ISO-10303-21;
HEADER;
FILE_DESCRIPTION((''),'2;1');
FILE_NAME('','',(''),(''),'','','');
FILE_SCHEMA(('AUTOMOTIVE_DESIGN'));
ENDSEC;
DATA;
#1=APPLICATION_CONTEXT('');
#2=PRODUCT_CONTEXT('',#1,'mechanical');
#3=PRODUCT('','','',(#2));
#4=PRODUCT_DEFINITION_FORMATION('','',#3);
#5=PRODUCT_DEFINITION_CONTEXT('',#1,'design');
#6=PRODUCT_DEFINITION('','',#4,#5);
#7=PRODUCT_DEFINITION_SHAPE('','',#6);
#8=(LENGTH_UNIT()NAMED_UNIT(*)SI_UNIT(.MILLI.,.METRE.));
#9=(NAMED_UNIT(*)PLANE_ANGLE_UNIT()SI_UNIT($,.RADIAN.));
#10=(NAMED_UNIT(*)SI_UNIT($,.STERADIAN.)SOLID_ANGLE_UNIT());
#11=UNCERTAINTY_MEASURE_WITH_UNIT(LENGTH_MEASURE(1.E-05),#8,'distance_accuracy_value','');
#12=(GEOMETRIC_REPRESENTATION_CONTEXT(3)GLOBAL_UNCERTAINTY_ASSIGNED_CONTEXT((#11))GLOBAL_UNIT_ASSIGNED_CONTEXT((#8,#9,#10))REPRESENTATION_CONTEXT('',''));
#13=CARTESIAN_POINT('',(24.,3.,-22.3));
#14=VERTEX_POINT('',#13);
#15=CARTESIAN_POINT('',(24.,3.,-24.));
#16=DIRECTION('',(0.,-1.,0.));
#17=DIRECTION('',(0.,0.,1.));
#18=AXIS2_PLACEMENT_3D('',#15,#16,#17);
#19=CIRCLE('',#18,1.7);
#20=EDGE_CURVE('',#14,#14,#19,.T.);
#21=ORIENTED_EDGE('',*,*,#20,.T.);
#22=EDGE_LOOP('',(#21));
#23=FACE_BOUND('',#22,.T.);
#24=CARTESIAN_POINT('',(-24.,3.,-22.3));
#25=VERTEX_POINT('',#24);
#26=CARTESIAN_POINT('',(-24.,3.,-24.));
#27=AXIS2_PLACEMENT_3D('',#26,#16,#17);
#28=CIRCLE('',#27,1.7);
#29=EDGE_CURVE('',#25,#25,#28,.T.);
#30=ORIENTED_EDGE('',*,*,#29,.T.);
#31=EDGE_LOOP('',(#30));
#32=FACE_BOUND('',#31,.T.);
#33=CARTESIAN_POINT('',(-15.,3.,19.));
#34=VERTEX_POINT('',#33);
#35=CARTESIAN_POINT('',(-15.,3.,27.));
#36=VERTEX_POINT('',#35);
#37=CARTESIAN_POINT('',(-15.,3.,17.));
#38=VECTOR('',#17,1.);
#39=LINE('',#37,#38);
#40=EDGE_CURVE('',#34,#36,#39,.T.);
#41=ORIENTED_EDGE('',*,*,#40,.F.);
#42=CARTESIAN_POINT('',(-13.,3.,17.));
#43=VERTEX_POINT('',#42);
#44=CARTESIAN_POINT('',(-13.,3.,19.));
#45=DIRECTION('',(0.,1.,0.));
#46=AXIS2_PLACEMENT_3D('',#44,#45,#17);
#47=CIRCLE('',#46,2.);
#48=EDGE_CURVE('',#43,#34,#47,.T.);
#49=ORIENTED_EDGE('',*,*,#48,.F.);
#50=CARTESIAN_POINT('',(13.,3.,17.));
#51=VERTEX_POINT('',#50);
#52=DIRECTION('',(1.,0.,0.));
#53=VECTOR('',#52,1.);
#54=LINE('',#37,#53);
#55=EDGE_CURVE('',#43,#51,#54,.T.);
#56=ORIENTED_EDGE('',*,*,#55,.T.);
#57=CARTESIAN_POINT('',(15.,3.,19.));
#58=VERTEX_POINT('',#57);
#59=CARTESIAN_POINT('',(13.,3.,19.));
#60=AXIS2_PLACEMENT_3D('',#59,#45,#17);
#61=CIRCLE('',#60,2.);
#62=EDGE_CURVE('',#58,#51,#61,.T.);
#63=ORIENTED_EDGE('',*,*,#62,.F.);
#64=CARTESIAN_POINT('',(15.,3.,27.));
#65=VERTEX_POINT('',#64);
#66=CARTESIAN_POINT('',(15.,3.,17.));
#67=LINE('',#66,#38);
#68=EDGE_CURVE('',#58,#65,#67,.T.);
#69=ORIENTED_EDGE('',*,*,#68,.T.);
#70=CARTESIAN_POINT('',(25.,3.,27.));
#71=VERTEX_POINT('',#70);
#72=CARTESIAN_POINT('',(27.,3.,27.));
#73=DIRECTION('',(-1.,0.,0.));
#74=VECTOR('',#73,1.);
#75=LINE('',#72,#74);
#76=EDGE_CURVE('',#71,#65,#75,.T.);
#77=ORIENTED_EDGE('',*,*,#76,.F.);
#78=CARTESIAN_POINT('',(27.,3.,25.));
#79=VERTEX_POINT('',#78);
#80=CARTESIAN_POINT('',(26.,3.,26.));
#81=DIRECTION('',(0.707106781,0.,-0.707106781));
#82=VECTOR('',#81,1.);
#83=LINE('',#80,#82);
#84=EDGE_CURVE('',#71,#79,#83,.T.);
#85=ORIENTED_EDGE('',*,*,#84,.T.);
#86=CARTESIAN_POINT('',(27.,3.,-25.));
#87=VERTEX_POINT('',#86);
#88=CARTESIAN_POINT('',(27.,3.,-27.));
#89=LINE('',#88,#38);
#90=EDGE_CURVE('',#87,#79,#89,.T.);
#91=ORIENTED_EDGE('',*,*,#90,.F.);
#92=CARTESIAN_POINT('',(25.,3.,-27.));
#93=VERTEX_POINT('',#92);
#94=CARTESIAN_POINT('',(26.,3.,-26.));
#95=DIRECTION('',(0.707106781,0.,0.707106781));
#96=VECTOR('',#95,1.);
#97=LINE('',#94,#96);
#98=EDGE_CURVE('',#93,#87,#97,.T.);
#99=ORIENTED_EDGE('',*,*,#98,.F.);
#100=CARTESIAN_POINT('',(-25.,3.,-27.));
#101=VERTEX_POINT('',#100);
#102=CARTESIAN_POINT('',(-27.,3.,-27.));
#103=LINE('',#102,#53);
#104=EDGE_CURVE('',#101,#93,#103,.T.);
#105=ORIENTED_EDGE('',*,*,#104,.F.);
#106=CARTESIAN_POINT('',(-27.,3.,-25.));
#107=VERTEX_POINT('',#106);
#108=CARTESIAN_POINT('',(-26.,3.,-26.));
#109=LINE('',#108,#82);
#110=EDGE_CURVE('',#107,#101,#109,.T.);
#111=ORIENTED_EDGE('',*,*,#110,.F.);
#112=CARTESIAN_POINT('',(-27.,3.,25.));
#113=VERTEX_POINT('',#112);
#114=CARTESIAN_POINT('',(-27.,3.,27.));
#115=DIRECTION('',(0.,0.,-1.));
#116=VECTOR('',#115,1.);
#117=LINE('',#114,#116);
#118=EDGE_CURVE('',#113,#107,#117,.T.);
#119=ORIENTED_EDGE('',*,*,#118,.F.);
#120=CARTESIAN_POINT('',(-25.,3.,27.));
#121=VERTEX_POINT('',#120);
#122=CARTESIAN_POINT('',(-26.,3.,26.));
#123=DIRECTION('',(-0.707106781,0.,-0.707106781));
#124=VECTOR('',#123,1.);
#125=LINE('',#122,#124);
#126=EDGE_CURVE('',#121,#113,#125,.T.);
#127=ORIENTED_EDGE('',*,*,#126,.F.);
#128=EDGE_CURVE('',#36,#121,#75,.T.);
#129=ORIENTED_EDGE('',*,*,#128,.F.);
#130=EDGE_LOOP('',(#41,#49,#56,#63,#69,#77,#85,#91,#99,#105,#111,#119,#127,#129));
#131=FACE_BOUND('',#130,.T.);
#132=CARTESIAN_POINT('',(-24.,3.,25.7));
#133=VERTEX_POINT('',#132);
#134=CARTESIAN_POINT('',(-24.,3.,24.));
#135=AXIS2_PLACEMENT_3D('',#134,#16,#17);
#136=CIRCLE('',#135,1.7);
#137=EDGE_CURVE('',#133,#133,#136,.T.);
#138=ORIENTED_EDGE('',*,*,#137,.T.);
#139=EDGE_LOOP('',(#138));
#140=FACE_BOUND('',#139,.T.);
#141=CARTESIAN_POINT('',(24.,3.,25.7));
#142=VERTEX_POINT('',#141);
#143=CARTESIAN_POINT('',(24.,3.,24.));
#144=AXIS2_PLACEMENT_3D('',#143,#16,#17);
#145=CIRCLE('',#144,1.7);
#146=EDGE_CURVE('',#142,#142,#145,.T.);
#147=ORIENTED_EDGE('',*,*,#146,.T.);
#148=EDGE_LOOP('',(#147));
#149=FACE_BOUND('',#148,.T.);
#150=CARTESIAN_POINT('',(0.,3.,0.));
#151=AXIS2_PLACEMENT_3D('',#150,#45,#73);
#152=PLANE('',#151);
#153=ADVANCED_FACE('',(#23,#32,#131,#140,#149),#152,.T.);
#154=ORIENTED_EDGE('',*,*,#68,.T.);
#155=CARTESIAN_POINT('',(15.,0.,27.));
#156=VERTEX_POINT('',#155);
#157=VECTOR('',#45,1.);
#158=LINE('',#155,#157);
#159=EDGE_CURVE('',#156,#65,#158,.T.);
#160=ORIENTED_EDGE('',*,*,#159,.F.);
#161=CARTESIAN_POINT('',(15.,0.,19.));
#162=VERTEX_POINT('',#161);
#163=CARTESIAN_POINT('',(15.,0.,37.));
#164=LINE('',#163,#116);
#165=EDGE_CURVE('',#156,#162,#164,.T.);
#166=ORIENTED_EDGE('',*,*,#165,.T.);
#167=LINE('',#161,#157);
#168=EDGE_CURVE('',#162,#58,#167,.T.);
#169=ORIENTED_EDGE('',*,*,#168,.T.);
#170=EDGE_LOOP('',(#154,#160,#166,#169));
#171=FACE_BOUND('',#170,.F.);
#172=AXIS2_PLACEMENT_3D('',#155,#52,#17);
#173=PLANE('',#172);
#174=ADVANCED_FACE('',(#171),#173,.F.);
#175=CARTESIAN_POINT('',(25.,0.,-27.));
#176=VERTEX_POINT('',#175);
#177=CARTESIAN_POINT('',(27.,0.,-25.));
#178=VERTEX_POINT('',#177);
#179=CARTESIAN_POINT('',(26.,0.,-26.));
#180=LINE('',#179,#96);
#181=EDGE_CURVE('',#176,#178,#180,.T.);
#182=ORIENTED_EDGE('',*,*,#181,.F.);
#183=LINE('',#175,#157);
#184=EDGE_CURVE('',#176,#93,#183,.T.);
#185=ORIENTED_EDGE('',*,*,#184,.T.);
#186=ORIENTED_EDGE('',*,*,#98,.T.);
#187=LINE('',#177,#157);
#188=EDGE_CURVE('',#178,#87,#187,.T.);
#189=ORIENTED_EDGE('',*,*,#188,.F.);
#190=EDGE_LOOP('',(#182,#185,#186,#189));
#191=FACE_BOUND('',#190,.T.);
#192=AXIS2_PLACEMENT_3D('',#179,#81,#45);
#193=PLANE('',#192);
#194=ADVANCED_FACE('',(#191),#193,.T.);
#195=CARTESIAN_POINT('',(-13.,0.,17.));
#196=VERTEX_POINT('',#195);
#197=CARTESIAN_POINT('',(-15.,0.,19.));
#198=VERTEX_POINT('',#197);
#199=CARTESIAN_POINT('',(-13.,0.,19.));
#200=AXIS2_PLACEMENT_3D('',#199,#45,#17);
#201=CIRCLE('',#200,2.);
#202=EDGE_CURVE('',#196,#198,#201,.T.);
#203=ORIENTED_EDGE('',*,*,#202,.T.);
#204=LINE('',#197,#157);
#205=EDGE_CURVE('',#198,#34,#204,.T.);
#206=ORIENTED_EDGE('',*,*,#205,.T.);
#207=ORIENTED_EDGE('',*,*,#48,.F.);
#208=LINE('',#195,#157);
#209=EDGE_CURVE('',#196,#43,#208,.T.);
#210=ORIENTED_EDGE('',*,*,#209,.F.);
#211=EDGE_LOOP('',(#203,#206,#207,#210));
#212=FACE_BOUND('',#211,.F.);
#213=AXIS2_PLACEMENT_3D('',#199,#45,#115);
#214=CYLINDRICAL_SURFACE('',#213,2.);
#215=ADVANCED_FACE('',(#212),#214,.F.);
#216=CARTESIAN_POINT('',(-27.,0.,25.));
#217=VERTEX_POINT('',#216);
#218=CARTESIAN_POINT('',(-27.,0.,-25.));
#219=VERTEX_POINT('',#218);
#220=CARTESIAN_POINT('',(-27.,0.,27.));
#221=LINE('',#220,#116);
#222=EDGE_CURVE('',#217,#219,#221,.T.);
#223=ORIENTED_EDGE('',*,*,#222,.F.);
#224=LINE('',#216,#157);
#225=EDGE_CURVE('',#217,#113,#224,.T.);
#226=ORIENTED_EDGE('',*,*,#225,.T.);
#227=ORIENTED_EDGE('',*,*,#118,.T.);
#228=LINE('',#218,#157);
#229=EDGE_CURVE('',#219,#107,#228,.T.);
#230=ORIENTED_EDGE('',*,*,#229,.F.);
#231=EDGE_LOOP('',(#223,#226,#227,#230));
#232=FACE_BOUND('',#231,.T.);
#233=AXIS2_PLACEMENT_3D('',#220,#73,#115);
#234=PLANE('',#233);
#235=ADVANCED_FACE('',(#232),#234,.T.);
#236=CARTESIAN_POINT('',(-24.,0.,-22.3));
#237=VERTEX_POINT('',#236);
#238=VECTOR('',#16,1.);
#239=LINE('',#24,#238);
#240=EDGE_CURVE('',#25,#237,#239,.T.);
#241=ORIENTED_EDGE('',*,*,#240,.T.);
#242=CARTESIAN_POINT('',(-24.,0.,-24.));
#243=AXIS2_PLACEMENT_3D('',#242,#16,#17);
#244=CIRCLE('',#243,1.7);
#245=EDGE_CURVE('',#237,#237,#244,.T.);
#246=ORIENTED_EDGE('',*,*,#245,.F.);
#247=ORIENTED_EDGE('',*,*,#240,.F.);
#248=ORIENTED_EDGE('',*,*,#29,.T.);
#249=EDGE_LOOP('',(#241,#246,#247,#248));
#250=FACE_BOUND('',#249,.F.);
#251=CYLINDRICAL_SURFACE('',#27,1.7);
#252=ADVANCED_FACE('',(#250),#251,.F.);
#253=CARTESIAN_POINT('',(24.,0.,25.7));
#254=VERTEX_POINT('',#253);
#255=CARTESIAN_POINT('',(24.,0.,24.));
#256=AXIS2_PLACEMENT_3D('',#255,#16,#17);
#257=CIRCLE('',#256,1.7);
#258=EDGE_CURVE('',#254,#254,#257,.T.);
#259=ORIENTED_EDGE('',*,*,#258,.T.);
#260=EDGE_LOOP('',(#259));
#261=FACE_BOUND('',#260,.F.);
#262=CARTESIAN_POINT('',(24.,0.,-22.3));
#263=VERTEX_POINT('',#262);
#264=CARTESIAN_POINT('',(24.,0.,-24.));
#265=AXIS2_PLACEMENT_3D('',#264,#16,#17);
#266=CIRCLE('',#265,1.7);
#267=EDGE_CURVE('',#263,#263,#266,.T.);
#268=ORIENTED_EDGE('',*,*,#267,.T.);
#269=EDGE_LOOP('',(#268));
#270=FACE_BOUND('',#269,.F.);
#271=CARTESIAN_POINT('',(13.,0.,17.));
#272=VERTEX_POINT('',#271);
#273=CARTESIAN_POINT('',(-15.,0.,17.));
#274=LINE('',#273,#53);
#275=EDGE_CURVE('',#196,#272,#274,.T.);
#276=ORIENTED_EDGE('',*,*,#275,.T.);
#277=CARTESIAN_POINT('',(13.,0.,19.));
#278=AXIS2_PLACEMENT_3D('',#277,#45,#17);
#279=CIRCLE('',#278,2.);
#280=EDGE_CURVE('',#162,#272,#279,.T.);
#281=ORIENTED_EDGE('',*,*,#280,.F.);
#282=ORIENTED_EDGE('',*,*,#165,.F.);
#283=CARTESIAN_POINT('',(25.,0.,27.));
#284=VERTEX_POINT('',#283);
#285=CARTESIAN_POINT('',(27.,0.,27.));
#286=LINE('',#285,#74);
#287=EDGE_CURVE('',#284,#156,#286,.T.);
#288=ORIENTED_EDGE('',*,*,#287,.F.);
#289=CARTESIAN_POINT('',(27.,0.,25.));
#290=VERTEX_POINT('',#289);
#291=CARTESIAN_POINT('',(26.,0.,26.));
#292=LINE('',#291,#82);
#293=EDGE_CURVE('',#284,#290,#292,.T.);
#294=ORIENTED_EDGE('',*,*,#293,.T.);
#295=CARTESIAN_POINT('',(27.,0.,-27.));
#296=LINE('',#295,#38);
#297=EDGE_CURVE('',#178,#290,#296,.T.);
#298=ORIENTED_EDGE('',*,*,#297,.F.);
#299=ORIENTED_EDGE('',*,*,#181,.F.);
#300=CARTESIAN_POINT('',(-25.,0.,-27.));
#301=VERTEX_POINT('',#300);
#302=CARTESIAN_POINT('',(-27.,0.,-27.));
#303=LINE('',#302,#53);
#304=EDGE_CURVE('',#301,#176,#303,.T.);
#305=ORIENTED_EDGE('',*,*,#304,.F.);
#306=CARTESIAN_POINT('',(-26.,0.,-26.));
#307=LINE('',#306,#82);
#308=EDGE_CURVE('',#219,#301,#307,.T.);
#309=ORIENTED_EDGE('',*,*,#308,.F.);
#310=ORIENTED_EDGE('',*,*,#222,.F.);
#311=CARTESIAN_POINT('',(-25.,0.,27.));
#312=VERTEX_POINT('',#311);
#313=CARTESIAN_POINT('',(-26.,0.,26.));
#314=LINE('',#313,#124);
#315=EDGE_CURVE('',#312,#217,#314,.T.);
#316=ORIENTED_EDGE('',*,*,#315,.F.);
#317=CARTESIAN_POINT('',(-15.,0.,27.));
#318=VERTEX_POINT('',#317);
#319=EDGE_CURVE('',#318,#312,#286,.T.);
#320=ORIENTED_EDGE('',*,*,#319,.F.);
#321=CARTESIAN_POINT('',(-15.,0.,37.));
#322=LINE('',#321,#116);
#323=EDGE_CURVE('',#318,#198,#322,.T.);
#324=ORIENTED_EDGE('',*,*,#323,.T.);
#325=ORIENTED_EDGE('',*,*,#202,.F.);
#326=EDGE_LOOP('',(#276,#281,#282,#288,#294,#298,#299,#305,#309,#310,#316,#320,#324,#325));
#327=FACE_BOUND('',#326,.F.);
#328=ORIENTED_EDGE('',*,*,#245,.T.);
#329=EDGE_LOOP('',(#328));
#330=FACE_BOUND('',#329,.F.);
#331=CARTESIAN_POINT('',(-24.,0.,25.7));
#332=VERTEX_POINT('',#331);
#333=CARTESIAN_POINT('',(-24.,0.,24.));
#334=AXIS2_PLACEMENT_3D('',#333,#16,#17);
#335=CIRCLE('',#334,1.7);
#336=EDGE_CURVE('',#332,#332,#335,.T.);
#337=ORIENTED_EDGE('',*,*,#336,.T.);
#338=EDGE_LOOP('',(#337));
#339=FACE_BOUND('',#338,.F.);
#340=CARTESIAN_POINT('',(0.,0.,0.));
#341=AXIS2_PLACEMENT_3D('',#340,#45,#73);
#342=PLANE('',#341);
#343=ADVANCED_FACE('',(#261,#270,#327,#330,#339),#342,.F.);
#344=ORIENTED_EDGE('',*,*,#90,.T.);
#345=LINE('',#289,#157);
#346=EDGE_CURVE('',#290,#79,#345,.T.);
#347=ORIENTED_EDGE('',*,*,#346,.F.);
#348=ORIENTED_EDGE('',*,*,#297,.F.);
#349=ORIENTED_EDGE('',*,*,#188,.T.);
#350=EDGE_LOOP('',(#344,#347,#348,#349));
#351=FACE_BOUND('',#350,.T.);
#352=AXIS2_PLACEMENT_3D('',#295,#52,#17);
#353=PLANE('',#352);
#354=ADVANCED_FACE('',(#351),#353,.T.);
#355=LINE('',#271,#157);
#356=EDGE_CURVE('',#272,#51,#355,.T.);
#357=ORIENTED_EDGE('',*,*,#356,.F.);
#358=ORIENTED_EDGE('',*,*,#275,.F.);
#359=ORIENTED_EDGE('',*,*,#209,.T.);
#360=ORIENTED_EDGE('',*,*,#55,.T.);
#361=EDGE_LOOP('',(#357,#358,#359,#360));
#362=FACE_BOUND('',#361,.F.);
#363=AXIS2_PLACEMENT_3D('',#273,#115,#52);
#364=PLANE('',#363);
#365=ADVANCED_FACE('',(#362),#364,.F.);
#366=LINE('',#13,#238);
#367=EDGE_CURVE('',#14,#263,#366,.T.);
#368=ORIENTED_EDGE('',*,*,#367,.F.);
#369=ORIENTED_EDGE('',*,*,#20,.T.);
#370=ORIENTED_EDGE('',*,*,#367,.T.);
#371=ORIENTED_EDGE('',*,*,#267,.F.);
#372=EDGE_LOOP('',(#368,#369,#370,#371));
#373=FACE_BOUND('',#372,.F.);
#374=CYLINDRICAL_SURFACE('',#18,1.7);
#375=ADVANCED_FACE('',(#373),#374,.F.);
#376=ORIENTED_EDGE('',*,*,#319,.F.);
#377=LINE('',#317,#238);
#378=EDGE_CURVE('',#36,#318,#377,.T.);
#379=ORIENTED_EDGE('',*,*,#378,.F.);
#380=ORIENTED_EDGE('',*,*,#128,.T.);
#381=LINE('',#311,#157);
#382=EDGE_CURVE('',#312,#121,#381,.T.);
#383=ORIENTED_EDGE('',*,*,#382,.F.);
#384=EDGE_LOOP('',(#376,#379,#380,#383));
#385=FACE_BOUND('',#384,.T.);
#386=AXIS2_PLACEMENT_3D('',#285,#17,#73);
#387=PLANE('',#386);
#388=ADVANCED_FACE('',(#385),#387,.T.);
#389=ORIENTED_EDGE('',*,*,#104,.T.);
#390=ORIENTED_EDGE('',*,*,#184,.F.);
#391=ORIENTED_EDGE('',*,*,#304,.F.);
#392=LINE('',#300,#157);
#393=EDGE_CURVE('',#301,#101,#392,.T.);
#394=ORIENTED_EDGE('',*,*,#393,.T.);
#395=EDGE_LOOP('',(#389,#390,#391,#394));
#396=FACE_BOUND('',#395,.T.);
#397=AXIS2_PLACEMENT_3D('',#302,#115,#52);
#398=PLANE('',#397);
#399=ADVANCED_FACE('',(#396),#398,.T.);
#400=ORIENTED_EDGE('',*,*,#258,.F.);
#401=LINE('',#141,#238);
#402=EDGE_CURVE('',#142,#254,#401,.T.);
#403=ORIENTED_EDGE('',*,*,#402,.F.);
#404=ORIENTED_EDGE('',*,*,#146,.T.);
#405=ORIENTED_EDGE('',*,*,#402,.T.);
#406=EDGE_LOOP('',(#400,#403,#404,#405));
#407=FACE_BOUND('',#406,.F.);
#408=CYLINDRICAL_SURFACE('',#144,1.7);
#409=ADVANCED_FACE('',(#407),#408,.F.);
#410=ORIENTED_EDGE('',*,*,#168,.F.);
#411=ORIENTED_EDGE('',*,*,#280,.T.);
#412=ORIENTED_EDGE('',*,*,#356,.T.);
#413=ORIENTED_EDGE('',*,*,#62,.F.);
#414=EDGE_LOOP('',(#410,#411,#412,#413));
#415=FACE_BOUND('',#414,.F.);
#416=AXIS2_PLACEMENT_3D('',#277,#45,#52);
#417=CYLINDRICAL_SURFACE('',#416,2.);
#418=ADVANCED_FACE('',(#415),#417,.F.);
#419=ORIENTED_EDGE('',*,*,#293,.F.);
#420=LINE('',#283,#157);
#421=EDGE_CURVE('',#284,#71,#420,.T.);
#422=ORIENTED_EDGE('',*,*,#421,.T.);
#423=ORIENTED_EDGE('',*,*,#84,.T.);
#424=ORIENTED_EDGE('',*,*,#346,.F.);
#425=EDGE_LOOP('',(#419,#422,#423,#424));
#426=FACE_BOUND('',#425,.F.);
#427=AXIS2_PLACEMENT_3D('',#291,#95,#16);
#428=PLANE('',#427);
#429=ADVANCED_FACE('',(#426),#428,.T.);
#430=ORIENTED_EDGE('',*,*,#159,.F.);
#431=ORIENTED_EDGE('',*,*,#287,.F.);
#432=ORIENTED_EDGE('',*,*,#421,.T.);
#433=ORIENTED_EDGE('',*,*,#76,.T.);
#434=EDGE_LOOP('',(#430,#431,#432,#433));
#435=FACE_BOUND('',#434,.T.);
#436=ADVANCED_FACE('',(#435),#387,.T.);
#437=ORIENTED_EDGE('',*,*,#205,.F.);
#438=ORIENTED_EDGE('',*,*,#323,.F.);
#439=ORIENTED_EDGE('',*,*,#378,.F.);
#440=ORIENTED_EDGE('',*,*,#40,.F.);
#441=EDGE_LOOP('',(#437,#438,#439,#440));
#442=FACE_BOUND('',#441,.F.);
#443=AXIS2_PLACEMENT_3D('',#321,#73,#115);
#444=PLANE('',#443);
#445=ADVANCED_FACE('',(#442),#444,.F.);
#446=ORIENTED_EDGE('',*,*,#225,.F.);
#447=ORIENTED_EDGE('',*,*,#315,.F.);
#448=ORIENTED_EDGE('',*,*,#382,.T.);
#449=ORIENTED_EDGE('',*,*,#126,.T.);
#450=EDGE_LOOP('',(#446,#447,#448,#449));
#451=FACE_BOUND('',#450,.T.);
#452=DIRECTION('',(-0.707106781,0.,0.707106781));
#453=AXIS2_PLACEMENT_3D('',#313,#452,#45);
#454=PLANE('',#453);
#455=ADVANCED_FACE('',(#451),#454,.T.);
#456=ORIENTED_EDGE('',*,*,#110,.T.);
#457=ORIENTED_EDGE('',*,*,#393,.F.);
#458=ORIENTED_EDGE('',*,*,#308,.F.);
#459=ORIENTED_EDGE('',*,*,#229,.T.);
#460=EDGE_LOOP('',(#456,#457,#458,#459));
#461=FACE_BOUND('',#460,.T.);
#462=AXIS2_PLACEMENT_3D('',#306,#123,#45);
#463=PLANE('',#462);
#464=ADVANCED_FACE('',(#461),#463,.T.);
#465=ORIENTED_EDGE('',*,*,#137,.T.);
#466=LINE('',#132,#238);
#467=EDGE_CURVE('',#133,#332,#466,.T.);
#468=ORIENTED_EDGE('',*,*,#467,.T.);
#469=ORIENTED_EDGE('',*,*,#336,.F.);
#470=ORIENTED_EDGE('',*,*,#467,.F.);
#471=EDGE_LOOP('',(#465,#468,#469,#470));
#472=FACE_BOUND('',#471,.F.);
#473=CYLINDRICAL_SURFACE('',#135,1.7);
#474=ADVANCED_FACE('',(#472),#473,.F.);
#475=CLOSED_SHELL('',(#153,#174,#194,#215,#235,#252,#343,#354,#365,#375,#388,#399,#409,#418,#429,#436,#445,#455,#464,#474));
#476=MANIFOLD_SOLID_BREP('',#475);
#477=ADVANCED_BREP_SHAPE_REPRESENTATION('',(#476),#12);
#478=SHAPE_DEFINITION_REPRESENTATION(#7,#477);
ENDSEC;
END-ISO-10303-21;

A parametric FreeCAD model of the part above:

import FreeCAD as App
import Part
import Sketcher

V = App.Vector
Q = App.Units.Quantity


def edges_at(feature, points):
    """Names of the edges that pass closest to the given points."""
    edges = feature.Shape.Edges
    near = lambda p: min(range(len(edges)), key=lambda i: edges[i].distToShape(Part.Vertex(*p))[0])
    return sorted({f"Edge{near(p) + 1}" for p in points})

doc = App.newDocument("Part")
body = doc.addObject("PartDesign::Body", "Body")

# Sketch on XZ plane
sketch1 = body.newObject("Sketcher::SketchObject", "Sketch")
sketch1.AttachmentSupport = (doc.getObject("XZ_Plane"), [""])
sketch1.MapMode = "FlatFace"
sketch1.addGeometry([
    Part.LineSegment(V(-27, 27, 0), V(27, 27, 0)),
    Part.LineSegment(V(27, 27, 0), V(27, -27, 0)),
    Part.LineSegment(V(27, -27, 0), V(-27, -27, 0)),
    Part.LineSegment(V(-27, -27, 0), V(-27, 27, 0)),
], False)
sketch1.addConstraint([
    Sketcher.Constraint("Coincident", 0, 2, 1, 1),
    Sketcher.Constraint("Coincident", 1, 2, 2, 1),
    Sketcher.Constraint("Coincident", 2, 2, 3, 1),
    Sketcher.Constraint("Coincident", 3, 2, 0, 1),
    Sketcher.Constraint("Horizontal", 0),
    Sketcher.Constraint("Vertical", 1),
    Sketcher.Constraint("Horizontal", 2),
    Sketcher.Constraint("Vertical", 3),
    Sketcher.Constraint("Symmetric", 0, 2, 2, 2, -1, 1),
    Sketcher.Constraint("Equal", 2, 1),
    Sketcher.Constraint("DistanceX", 0, 1, 0, 2, Q("54 mm")),
])
pad1 = body.newObject("PartDesign::Pad", "Pad")
pad1.Profile = sketch1
pad1.Length = 3
pad1.Reversed = True
doc.recompute()

chamfer = body.newObject("PartDesign::Chamfer", "Chamfer")
chamfer.Base = (pad1, edges_at(pad1, [
    (27, 1.5, 27),
    (27, 1.5, -27),
    (-27, 1.5, 27),
    (-27, 1.5, -27),
]))
chamfer.Size = 2

# Sketch on XZ plane
sketch2 = body.newObject("Sketcher::SketchObject", "Sketch001")
sketch2.AttachmentSupport = (doc.getObject("XZ_Plane"), [""])
sketch2.MapMode = "FlatFace"
sketch2.AttachmentOffset = App.Placement(V(0, 0, -3), App.Rotation())
sketch2.addGeometry([
    Part.Circle(V(24, -24, 0), V(0, 0, 1), 1.7),
    Part.Circle(V(24, 24, 0), V(0, 0, 1), 1.7),
    Part.Circle(V(-24, 24, 0), V(0, 0, 1), 1.7),
    Part.Circle(V(-24, -24, 0), V(0, 0, 1), 1.7),
], False)
sketch2.addConstraint([
    Sketcher.Constraint("Equal", 0, 1),
    Sketcher.Constraint("Equal", 1, 2),
    Sketcher.Constraint("Equal", 2, 3),
    Sketcher.Constraint("Symmetric", 0, 3, 2, 3, -1, 1),
    Sketcher.Constraint("Symmetric", 1, 3, 3, 3, -1, 1),
    Sketcher.Constraint("Symmetric", 1, 3, 2, 3, -2),
    Sketcher.Constraint("Diameter", 0, Q("3.4 mm")),
    Sketcher.Constraint("DistanceX", -1, 1, 0, 3, Q("24 mm")),
    Sketcher.Constraint("DistanceY", 0, 3, -1, 1, Q("24 mm")),
])
doc.recompute()
hole = body.newObject("PartDesign::Hole", "Hole")
hole.Profile = sketch2
hole.ThreadType = "None"
hole.Diameter = 3.4
hole.DepthType = "ThroughAll"
hole.Reversed = True

# Sketch on XZ plane
sketch3 = body.newObject("Sketcher::SketchObject", "Sketch002")
sketch3.AttachmentSupport = (doc.getObject("XZ_Plane"), [""])
sketch3.MapMode = "FlatFace"
sketch3.addGeometry([
    Part.LineSegment(V(15, 37, 0), V(-15, 37, 0)),
    Part.LineSegment(V(-15, 37, 0), V(-15, 17, 0)),
    Part.LineSegment(V(-15, 17, 0), V(15, 17, 0)),
    Part.LineSegment(V(15, 17, 0), V(15, 37, 0)),
], False)
sketch3.addConstraint([
    Sketcher.Constraint("Coincident", 0, 2, 1, 1),
    Sketcher.Constraint("Coincident", 1, 2, 2, 1),
    Sketcher.Constraint("Coincident", 2, 2, 3, 1),
    Sketcher.Constraint("Coincident", 3, 2, 0, 1),
    Sketcher.Constraint("Horizontal", 0),
    Sketcher.Constraint("Vertical", 1),
    Sketcher.Constraint("Horizontal", 2),
    Sketcher.Constraint("Vertical", 3),
    Sketcher.Constraint("DistanceX", 0, 2, 0, 1, Q("30 mm")),
    Sketcher.Constraint("DistanceY", 1, 2, 1, 1, Q("20 mm")),
    Sketcher.Constraint("DistanceX", 0, 2, -1, 1, Q("15 mm")),
    Sketcher.Constraint("DistanceY", -1, 1, 0, 2, Q("37 mm")),
])
pocket1 = body.newObject("PartDesign::Pocket", "Pocket")
pocket1.Profile = sketch3
pocket1.Length = 3
doc.recompute()

fillet = body.newObject("PartDesign::Fillet", "Fillet")
fillet.Base = (pocket1, edges_at(pocket1, [(-15, 1.5, 17), (15, 1.5, 17)]))
fillet.Radius = 2

doc.recompute()
